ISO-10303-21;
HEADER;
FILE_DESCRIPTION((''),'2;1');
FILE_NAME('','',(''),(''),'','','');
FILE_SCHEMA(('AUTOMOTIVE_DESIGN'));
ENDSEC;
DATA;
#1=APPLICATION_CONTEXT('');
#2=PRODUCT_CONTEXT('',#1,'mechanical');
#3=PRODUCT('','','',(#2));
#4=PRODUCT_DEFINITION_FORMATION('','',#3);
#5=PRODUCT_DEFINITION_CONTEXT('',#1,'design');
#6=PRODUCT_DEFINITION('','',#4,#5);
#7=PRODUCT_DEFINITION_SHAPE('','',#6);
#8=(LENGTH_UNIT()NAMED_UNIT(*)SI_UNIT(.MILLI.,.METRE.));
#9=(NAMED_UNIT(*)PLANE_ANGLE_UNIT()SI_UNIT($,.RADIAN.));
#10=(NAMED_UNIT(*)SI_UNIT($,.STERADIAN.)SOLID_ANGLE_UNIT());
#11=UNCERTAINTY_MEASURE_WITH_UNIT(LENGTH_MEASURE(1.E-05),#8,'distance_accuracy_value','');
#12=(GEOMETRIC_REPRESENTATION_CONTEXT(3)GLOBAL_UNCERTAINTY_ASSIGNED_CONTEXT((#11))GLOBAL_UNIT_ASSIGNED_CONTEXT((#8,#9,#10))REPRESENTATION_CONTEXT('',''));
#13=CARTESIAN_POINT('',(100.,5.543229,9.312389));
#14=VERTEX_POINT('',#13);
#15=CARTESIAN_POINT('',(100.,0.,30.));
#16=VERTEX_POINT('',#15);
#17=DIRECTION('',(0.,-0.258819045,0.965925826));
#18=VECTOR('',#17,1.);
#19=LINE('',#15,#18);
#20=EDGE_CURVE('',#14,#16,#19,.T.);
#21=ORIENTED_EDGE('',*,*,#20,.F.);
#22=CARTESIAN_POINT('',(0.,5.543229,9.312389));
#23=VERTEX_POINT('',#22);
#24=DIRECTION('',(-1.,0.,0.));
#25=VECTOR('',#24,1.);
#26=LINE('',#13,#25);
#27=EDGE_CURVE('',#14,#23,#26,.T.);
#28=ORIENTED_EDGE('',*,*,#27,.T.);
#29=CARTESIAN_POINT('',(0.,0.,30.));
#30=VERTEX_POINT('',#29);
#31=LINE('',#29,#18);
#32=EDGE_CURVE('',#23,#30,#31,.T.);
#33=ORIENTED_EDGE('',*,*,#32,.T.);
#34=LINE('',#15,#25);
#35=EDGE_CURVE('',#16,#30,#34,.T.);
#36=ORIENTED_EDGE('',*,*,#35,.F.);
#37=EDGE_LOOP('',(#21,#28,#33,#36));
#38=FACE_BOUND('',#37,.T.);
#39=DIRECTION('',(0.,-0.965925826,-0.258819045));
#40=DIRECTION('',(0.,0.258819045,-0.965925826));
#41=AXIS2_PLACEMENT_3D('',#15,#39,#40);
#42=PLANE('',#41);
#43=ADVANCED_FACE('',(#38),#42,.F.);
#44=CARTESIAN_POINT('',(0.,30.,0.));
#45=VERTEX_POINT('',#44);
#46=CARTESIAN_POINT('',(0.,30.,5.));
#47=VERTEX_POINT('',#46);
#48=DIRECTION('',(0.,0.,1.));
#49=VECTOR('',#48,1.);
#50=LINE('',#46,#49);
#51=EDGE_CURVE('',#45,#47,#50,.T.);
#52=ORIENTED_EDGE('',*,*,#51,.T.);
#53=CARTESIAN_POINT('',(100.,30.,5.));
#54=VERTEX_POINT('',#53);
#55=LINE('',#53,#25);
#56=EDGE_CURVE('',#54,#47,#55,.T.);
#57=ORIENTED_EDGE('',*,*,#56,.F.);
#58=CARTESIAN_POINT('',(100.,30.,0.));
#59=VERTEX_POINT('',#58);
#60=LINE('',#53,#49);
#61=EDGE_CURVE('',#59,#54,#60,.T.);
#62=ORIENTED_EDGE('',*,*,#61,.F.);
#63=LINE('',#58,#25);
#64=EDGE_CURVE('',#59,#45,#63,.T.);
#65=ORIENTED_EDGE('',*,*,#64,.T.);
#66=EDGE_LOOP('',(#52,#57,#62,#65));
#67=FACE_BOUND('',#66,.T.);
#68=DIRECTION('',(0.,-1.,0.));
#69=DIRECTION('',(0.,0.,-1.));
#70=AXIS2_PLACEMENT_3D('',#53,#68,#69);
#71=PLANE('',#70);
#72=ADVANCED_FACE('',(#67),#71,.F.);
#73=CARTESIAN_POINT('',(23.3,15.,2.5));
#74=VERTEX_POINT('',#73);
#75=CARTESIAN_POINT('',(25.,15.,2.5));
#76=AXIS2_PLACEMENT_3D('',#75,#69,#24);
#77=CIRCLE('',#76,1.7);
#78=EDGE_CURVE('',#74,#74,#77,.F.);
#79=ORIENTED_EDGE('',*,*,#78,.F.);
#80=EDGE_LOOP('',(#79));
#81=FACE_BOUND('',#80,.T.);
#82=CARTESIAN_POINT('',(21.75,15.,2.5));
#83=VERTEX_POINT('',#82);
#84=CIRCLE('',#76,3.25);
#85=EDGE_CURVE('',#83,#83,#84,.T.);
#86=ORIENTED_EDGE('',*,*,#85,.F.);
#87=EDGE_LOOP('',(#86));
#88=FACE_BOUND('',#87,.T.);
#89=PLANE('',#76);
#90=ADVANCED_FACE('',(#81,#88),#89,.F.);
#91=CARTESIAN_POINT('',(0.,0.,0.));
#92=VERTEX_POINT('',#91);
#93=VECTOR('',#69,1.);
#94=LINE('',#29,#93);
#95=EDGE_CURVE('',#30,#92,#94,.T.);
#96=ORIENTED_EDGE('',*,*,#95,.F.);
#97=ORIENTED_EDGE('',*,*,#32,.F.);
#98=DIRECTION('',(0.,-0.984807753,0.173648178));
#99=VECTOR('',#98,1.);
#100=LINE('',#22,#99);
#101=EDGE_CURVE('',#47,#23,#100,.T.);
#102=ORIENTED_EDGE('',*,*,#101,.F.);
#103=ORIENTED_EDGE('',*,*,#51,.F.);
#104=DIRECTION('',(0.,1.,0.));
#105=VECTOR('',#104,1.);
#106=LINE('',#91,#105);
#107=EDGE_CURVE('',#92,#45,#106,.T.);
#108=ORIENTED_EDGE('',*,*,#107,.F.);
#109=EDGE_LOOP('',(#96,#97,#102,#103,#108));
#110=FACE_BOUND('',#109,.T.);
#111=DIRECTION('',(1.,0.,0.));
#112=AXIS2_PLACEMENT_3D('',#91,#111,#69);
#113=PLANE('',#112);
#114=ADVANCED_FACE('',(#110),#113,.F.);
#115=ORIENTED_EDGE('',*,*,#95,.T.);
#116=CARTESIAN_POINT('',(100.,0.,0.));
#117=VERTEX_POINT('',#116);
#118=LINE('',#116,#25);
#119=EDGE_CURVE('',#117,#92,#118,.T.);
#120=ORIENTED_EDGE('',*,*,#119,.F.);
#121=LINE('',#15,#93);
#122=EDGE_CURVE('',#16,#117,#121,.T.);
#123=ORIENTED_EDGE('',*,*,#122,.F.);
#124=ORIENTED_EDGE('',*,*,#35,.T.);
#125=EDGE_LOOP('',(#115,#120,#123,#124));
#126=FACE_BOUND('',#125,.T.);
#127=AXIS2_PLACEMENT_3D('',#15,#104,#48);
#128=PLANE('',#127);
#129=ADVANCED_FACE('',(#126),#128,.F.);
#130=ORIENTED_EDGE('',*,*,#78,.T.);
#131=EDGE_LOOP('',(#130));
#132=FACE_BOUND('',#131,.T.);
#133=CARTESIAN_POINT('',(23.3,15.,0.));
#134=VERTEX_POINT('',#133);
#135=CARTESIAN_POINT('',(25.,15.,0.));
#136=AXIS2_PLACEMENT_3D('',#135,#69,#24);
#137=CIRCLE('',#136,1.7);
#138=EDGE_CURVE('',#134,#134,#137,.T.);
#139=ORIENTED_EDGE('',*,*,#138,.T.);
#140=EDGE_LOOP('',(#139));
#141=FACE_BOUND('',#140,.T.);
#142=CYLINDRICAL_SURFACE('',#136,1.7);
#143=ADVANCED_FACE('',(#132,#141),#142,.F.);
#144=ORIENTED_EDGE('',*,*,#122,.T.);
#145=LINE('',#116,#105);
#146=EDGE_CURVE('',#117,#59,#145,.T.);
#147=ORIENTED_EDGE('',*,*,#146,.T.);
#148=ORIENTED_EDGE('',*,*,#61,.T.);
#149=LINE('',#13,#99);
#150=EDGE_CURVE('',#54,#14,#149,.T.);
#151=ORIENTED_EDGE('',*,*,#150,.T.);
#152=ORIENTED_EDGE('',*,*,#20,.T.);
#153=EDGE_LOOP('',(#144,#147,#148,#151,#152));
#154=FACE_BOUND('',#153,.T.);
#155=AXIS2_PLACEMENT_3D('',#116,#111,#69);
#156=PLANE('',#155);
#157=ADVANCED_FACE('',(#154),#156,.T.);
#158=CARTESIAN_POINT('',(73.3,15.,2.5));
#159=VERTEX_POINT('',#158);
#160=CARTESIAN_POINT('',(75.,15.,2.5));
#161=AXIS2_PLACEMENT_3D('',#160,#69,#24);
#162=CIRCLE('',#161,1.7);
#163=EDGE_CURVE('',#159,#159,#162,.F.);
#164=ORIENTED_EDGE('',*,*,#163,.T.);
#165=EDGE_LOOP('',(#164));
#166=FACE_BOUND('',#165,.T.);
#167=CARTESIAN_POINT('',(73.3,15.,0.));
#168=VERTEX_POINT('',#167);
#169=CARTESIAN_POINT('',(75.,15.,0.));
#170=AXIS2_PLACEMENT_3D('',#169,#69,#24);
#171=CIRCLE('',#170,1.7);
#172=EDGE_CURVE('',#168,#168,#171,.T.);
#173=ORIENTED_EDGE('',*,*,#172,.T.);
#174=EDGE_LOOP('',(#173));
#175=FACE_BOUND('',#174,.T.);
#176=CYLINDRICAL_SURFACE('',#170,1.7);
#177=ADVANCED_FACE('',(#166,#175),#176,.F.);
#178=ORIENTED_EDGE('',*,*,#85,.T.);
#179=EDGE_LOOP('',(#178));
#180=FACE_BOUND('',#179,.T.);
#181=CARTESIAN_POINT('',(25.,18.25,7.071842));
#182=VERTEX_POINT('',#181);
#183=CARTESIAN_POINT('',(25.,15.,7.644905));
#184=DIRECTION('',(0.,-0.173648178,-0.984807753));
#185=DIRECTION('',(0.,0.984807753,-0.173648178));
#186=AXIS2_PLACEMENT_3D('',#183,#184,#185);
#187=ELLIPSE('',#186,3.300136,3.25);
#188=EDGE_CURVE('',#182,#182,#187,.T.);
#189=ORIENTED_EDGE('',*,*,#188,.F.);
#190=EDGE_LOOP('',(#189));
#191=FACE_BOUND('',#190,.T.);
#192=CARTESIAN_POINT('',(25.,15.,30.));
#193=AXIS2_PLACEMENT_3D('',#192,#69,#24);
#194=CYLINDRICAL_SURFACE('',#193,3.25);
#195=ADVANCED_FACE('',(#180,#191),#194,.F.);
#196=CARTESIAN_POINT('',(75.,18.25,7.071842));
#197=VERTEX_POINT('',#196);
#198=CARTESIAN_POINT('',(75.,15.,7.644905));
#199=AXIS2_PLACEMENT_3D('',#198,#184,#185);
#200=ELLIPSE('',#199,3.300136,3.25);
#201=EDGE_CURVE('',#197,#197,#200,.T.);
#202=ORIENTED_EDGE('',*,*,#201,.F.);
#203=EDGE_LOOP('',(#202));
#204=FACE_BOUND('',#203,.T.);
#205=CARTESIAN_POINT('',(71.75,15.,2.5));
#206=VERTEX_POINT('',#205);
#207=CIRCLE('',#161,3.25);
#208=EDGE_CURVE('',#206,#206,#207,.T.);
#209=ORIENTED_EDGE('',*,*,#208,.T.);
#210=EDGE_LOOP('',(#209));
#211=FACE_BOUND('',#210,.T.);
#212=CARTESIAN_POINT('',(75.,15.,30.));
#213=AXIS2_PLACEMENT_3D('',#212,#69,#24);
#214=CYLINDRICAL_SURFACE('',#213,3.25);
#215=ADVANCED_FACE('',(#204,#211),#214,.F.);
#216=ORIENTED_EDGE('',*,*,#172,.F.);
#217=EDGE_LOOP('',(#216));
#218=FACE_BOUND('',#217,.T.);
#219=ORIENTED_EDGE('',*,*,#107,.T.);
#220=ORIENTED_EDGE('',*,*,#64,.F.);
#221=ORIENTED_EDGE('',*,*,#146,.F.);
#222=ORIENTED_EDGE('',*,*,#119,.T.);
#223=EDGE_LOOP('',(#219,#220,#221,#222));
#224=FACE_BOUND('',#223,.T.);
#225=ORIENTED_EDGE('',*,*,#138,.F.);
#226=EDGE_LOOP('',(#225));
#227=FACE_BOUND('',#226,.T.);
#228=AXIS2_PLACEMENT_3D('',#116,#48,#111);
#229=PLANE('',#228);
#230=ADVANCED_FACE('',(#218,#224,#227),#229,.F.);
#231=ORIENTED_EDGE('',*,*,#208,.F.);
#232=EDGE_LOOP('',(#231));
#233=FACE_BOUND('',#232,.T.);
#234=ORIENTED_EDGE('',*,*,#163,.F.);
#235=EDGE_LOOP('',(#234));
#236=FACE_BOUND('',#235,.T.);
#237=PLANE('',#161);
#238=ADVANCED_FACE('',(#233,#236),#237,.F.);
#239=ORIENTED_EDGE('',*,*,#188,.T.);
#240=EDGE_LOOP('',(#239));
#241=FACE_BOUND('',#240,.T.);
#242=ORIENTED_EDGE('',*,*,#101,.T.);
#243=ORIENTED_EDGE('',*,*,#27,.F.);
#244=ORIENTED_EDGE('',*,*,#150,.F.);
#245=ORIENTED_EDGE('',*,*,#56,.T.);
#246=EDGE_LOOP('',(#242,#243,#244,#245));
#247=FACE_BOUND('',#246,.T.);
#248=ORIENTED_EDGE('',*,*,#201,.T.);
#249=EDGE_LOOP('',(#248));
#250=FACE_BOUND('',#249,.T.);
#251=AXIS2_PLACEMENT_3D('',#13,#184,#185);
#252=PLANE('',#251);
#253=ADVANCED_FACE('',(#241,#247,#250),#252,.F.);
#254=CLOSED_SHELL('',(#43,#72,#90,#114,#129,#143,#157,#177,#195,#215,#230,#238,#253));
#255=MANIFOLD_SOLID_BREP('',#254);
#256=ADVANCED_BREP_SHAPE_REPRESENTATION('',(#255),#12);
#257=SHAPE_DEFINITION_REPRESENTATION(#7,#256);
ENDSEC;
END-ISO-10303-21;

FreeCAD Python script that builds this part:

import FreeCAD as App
import Part
import Sketcher

V = App.Vector
Q = App.Units.Quantity

doc = App.newDocument("Part")
body = doc.addObject("PartDesign::Body", "Body")

# Sketch on YZ plane
sketch1 = body.newObject("Sketcher::SketchObject", "Sketch")
sketch1.AttachmentSupport = (doc.getObject("YZ_Plane"), [""])
sketch1.MapMode = "FlatFace"
sketch1.addGeometry(Part.LineSegment(V(0, 0, 0), V(30, 0, 0)), False)
sketch1.addGeometry(Part.LineSegment(V(30, 0, 0), V(30, 5, 0)), False)
sketch1.addGeometry(Part.LineSegment(V(30, 5, 0), V(6, 9, 0)), False)
sketch1.addGeometry(Part.LineSegment(V(6, 9, 0), V(0, 30, 0)), False)
sketch1.addGeometry(Part.LineSegment(V(0, 30, 0), V(0, 0, 0)), False)
sketch1.addConstraint(Sketcher.Constraint("Coincident", 0, 2, 1, 1))
sketch1.addConstraint(Sketcher.Constraint("Coincident", 1, 2, 2, 1))
sketch1.addConstraint(Sketcher.Constraint("Coincident", 2, 2, 3, 1))
sketch1.addConstraint(Sketcher.Constraint("Coincident", 3, 2, 4, 1))
sketch1.addConstraint(Sketcher.Constraint("Coincident", 4, 2, 0, 1))
sketch1.addConstraint(Sketcher.Constraint("Horizontal", 0))
sketch1.addConstraint(Sketcher.Constraint("Vertical", 1))
sketch1.addConstraint(Sketcher.Constraint("Vertical", 4))
sketch1.addConstraint(Sketcher.Constraint("Coincident", 4, 2, -1, 1))
sketch1.addConstraint(Sketcher.Constraint("Equal", 0, 4))
sketch1.addConstraint(Sketcher.Constraint("DistanceX", 0, 1, 0, 2, 30.0))
sketch1.addConstraint(Sketcher.Constraint("DistanceY", 1, 1, 1, 2, 5.0))
sketch1.addConstraint(Sketcher.Constraint("Angle", 2, Q("170 deg")))
sketch1.addConstraint(Sketcher.Constraint("Angle", 3, Q("105 deg")))
pad1 = body.newObject("PartDesign::Pad", "Pad")
pad1.Profile = sketch1
pad1.Length = 100

# Sketch on XY plane
sketch2 = body.newObject("Sketcher::SketchObject", "Sketch001")
sketch2.AttachmentSupport = (doc.getObject("XY_Plane"), [""])
sketch2.MapMode = "FlatFace"
sketch2.addGeometry(Part.Circle(V(25, 15, 0), V(0, 0, 1), 1.7), False)
sketch2.addGeometry(Part.Circle(V(75, 15, 0), V(0, 0, 1), 1.7), False)
sketch2.addConstraint(Sketcher.Constraint("Equal", 0, 1))
sketch2.addConstraint(Sketcher.Constraint("Horizontal", 0, 3, 1, 3))
sketch2.addConstraint(Sketcher.Constraint("Diameter", 0, 3.4))
sketch2.addConstraint(Sketcher.Constraint("DistanceX", -1, 1, 0, 3, 25.0))
sketch2.addConstraint(Sketcher.Constraint("DistanceY", -1, 1, 0, 3, 15.0))
sketch2.addConstraint(Sketcher.Constraint("DistanceX", -1, 1, 1, 3, 75.0))
doc.recompute()
hole = body.newObject("PartDesign::Hole", "Hole")
hole.Profile = sketch2
hole.ThreadType = "None"
hole.Diameter = 3.4
hole.DepthType = "ThroughAll"
hole.Reversed = True

# Sketch on XY plane
sketch3 = body.newObject("Sketcher::SketchObject", "Sketch002")
sketch3.AttachmentSupport = (doc.getObject("XY_Plane"), [""])
sketch3.MapMode = "FlatFace"
sketch3.AttachmentOffset = App.Placement(V(0, 0, 2.5), App.Rotation())
sketch3.addGeometry(Part.Circle(V(75, 15, 0), V(0, 0, 1), 3.2), False)
sketch3.addGeometry(Part.Circle(V(25, 15, 0), V(0, 0, 1), 3.2), False)
sketch3.addConstraint(Sketcher.Constraint("Equal", 0, 1))
sketch3.addConstraint(Sketcher.Constraint("Horizontal", 0, 3, 1, 3))
sketch3.addConstraint(Sketcher.Constraint("Diameter", 0, 6.5))
sketch3.addConstraint(Sketcher.Constraint("DistanceX", -1, 1, 0, 3, 75.0))
sketch3.addConstraint(Sketcher.Constraint("DistanceY", -1, 1, 0, 3, 15.0))
sketch3.addConstraint(Sketcher.Constraint("DistanceX", -1, 1, 1, 3, 25.0))
pocket1 = body.newObject("PartDesign::Pocket", "Pocket")
pocket1.Profile = sketch3
pocket1.Type = "ThroughAll"
pocket1.Reversed = True

doc.recompute()
